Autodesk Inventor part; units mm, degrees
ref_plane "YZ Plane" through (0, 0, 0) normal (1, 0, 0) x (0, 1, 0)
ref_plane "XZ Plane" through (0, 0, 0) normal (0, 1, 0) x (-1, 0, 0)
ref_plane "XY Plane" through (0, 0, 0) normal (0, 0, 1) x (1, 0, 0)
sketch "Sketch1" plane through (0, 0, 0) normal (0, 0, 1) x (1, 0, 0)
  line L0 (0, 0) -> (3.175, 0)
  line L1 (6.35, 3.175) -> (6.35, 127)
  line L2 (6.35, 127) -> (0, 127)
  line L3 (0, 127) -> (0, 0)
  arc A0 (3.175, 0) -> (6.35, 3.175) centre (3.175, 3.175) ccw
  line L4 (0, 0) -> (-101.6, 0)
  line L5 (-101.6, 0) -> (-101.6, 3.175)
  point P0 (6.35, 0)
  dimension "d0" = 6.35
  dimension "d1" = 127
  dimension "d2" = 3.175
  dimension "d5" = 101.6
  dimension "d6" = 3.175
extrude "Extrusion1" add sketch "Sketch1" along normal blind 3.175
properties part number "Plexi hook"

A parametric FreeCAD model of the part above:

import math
import FreeCAD as App
import Part
import Sketcher
Q = App.Units.Quantity

doc = App.newDocument("Part")
body = doc.addObject("PartDesign::Body", "Body")

# Sketch on XY plane
sketch1 = body.newObject("Sketcher::SketchObject", "Sketch")
sketch1.AttachmentSupport = (doc.getObject("XY_Plane"), [""])
sketch1.MapMode = "FlatFace"
sketch1.addGeometry([
    Part.LineSegment(App.Vector(0, 127, 0), App.Vector(0, 0, 0)),  # 0
    Part.LineSegment(App.Vector(0, 0, 0), App.Vector(3.2, 0, 0)),  # 1
    Part.ArcOfCircle(Part.Circle(App.Vector(3.2, 3.2, 0), App.Vector(0, 0, 1), 3.2), math.radians(-90), math.radians(0)),  # 2
    Part.LineSegment(App.Vector(6.3, 3.2, 0), App.Vector(6.3, 127, 0)),  # 3
    Part.LineSegment(App.Vector(6.3, 127, 0), App.Vector(0, 127, 0)),  # 4
], False)
sketch1.addConstraint([
    Sketcher.Constraint("Coincident", 0, 2, 1, 1),
    Sketcher.Constraint("Tangent", 1, 2, 2, 1),
    Sketcher.Constraint("Tangent", 2, 2, 3, 1),
    Sketcher.Constraint("Coincident", 3, 2, 4, 1),
    Sketcher.Constraint("Coincident", 4, 2, 0, 1),
    Sketcher.Constraint("Vertical", 0),
    Sketcher.Constraint("Horizontal", 1),
    Sketcher.Constraint("Vertical", 3),
    Sketcher.Constraint("Horizontal", 4),
    Sketcher.Constraint("Coincident", 0, 2, -1, 1),
    Sketcher.Constraint("DistanceY", 0, 2, 0, 1, Q("5 in")),
    Sketcher.Constraint("Radius", 2, Q("0.125 in")),
    Sketcher.Constraint("DistanceX", 4, 2, 4, 1, Q("0.25 in")),
])
pad1 = body.newObject("PartDesign::Pad", "Pad")
pad1.Profile = sketch1
pad1.Length = Q("0.125 in")

doc.recompute()
